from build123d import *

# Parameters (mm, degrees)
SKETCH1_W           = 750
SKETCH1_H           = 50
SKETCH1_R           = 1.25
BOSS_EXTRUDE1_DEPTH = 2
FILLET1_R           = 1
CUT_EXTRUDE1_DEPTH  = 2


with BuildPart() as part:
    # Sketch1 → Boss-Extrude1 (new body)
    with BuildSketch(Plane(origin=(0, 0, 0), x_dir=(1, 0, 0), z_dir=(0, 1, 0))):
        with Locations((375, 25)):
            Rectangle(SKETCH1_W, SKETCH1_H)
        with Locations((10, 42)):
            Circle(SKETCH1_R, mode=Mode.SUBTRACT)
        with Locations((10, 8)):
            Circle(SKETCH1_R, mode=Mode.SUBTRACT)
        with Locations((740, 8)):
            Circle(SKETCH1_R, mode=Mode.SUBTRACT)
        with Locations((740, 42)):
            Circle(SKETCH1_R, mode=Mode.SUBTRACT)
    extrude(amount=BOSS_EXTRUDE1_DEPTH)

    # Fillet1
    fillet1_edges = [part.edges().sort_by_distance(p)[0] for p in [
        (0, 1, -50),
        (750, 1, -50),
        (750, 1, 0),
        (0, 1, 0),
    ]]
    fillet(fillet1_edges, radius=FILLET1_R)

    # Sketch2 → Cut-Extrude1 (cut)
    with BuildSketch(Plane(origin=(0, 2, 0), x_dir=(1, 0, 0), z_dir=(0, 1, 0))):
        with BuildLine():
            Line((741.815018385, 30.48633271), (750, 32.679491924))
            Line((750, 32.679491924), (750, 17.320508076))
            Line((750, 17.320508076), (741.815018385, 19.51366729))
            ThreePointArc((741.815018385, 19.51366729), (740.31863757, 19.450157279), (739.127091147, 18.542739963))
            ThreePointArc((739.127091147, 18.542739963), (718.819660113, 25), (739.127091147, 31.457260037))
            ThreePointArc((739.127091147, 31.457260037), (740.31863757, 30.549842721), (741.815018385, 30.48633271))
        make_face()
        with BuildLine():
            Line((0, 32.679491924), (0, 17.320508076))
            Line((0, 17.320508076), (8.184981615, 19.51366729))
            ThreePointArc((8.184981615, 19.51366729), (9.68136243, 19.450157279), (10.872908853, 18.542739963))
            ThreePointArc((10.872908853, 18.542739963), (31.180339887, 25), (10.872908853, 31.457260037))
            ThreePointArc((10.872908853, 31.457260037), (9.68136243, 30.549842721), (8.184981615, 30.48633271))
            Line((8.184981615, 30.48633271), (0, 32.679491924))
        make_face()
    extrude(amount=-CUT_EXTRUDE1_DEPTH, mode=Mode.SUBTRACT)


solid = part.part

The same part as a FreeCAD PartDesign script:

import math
import FreeCAD as App
import Part
import Sketcher
Q = App.Units.Quantity


def edges_at(feature, points):
    """Names of the edges that pass closest to the given points."""
    edges = feature.Shape.Edges
    near = lambda p: min(range(len(edges)), key=lambda i: edges[i].distToShape(Part.Vertex(*p))[0])
    return sorted({f"Edge{near(p) + 1}" for p in points})

doc = App.newDocument("Part")
body = doc.addObject("PartDesign::Body", "Body")

sketch1 = doc.addObject("Sketcher::SketchObject", "Sketch")
body.addObject(sketch1)
sketch1.AttachmentSupport = (doc.XZ_Plane, [""])
sketch1.MapMode = "FlatFace"
sketch1.addGeometry(Part.LineSegment(App.Vector(0, -50, 0), App.Vector(0, 0, 0)), False)
sketch1.addGeometry(Part.LineSegment(App.Vector(0, 0, 0), App.Vector(750, 0, 0)), False)
sketch1.addGeometry(Part.LineSegment(App.Vector(750, 0, 0), App.Vector(750, -50, 0)), False)
sketch1.addGeometry(Part.LineSegment(App.Vector(750, -50, 0), App.Vector(0, -50, 0)), False)
sketch1.addGeometry(Part.Circle(App.Vector(10, -8, 0), App.Vector(0, 0, 1), 1.25), False)
sketch1.addGeometry(Part.Circle(App.Vector(740, -8, 0), App.Vector(0, 0, 1), 1.25), False)
sketch1.addGeometry(Part.Circle(App.Vector(10, -42, 0), App.Vector(0, 0, 1), 1.25), False)
sketch1.addGeometry(Part.Circle(App.Vector(740, -42, 0), App.Vector(0, 0, 1), 1.25), False)
sketch1.addConstraint(Sketcher.Constraint("Coincident", 0, 2, 1, 1))
sketch1.addConstraint(Sketcher.Constraint("Coincident", 1, 2, 2, 1))
sketch1.addConstraint(Sketcher.Constraint("Coincident", 2, 2, 3, 1))
sketch1.addConstraint(Sketcher.Constraint("Coincident", 3, 2, 0, 1))
sketch1.addConstraint(Sketcher.Constraint("Vertical", 0))
sketch1.addConstraint(Sketcher.Constraint("Horizontal", 1))
sketch1.addConstraint(Sketcher.Constraint("Vertical", 2))
sketch1.addConstraint(Sketcher.Constraint("Horizontal", 3))
sketch1.addConstraint(Sketcher.Constraint("Coincident", 0, 2, -1, 1))
sketch1.addConstraint(Sketcher.Constraint("Equal", 4, 5))
sketch1.addConstraint(Sketcher.Constraint("Equal", 5, 6))
sketch1.addConstraint(Sketcher.Constraint("Equal", 6, 7))
sketch1.addConstraint(Sketcher.Constraint("Horizontal", 4, 3, 5, 3))
sketch1.addConstraint(Sketcher.Constraint("Horizontal", 6, 3, 7, 3))
sketch1.addConstraint(Sketcher.Constraint("Vertical", 4, 3, 6, 3))
sketch1.addConstraint(Sketcher.Constraint("Vertical", 5, 3, 7, 3))
sketch1.addConstraint(Sketcher.Constraint("Diameter", 4, 2.5))
sketch1.addConstraint(Sketcher.Constraint("DistanceX", 1, 1, 1, 2, 750.0))
sketch1.addConstraint(Sketcher.Constraint("DistanceY", 0, 1, 0, 2, 50.0))
sketch1.addConstraint(Sketcher.Constraint("DistanceX", -1, 1, 4, 3, 10.0))
sketch1.addConstraint(Sketcher.Constraint("DistanceY", 4, 3, -1, 1, 8.0))
sketch1.addConstraint(Sketcher.Constraint("DistanceX", -1, 1, 5, 3, 740.0))
sketch1.addConstraint(Sketcher.Constraint("DistanceY", 6, 3, -1, 1, 42.0))
pad1 = doc.addObject("PartDesign::Pad", "Pad")
body.addObject(pad1)
pad1.Profile = sketch1
pad1.Length = 2
pad1.Reversed = True
doc.recompute()

fillet = doc.addObject("PartDesign::Fillet", "Fillet")
body.addObject(fillet)
fillet.Base = (pad1, edges_at(pad1, [
    (0, 1, -50),
    (750, 1, -50),
    (750, 1, 0),
    (0, 1, 0),
]))
fillet.Radius = 1

sketch2 = doc.addObject("Sketcher::SketchObject", "Sketch001")
body.addObject(sketch2)
sketch2.AttachmentSupport = (doc.XZ_Plane, [""])
sketch2.MapMode = "FlatFace"
sketch2.AttachmentOffset = App.Placement(App.Vector(0, 0, -2), App.Rotation())
sketch2.addGeometry(Part.LineSegment(App.Vector(750, -32.679492, 0), App.Vector(741.815018, -30.486333, 0)), False)
sketch2.addGeometry(Part.ArcOfCircle(Part.Circle(App.Vector(741.167971, -32.901147, 0), App.Vector(0, 0, 1), 2.5), math.radians(75), math.radians(144.72125)), False)
sketch2.addGeometry(Part.ArcOfCircle(Part.Circle(App.Vector(730, -25, 0), App.Vector(0, 0, 1), 11.18034), math.radians(35.27875), math.radians(324.72125)), False)
sketch2.addGeometry(Part.ArcOfCircle(Part.Circle(App.Vector(741.167971, -17.098853, 0), App.Vector(0, 0, 1), 2.5), math.radians(-144.72125), math.radians(-75)), False)
sketch2.addGeometry(Part.LineSegment(App.Vector(741.815018, -19.513667, 0), App.Vector(750, -17.320508, 0)), False)
sketch2.addGeometry(Part.LineSegment(App.Vector(750, -17.320508, 0), App.Vector(750, -32.679492, 0)), False)
sketch2.addGeometry(Part.LineSegment(App.Vector(0, -32.679492, 0), App.Vector(0, -17.320508, 0)), False)
sketch2.addGeometry(Part.LineSegment(App.Vector(0, -17.320508, 0), App.Vector(8.184982, -19.513667, 0)), False)
sketch2.addGeometry(Part.ArcOfCircle(Part.Circle(App.Vector(8.832029, -17.098853, 0), App.Vector(0, 0, 1), 2.5), math.radians(-105), math.radians(-35.27875)), False)
sketch2.addGeometry(Part.ArcOfCircle(Part.Circle(App.Vector(20, -25, 0), App.Vector(0, 0, 1), 11.18034), math.radians(-144.72125), math.radians(144.72125)), False)
sketch2.addGeometry(Part.ArcOfCircle(Part.Circle(App.Vector(8.832029, -32.901147, 0), App.Vector(0, 0, 1), 2.5), math.radians(35.27875), math.radians(105)), False)
sketch2.addGeometry(Part.LineSegment(App.Vector(8.184982, -30.486333, 0), App.Vector(0, -32.679492, 0)), False)
sketch2.addConstraint(Sketcher.Constraint("Tangent", 0, 2, 1, 1))
sketch2.addConstraint(Sketcher.Constraint("Tangent", 1, 2, 2, 2))
sketch2.addConstraint(Sketcher.Constraint("Tangent", 2, 1, 3, 1))
sketch2.addConstraint(Sketcher.Constraint("Tangent", 3, 2, 4, 1))
sketch2.addConstraint(Sketcher.Constraint("Coincident", 4, 2, 5, 1))
sketch2.addConstraint(Sketcher.Constraint("Coincident", 5, 2, 0, 1))
sketch2.addConstraint(Sketcher.Constraint("Coincident", 6, 2, 7, 1))
sketch2.addConstraint(Sketcher.Constraint("Tangent", 7, 2, 8, 1))
sketch2.addConstraint(Sketcher.Constraint("Tangent", 8, 2, 9, 2))
sketch2.addConstraint(Sketcher.Constraint("Tangent", 9, 1, 10, 1))
sketch2.addConstraint(Sketcher.Constraint("Tangent", 10, 2, 11, 1))
sketch2.addConstraint(Sketcher.Constraint("Coincident", 11, 2, 6, 1))
sketch2.addConstraint(Sketcher.Constraint("Vertical", 5))
sketch2.addConstraint(Sketcher.Constraint("Vertical", 6))
sketch2.addConstraint(Sketcher.Constraint("Equal", 1, 3))
sketch2.addConstraint(Sketcher.Constraint("Equal", 3, 8))
sketch2.addConstraint(Sketcher.Constraint("Equal", 2, 9))
sketch2.addConstraint(Sketcher.Constraint("Equal", 8, 10))
sketch2.addConstraint(Sketcher.Constraint("PointOnObject", 6, 2, -2))
sketch2.addConstraint(Sketcher.Constraint("Parallel", 0, 7))
sketch2.addConstraint(Sketcher.Constraint("Parallel", 4, 11))
sketch2.addConstraint(Sketcher.Constraint("Horizontal", 3, 3, 8, 3))
sketch2.addConstraint(Sketcher.Constraint("Horizontal", 2, 3, 9, 3))
sketch2.addConstraint(Sketcher.Constraint("Horizontal", 1, 3, 10, 3))
sketch2.addConstraint(Sketcher.Constraint("Horizontal", 4, 2, 6, 2))
sketch2.addConstraint(Sketcher.Constraint("Horizontal", 3, 2, 7, 2))
sketch2.addConstraint(Sketcher.Constraint("Vertical", 1, 3, 3, 3))
sketch2.addConstraint(Sketcher.Constraint("Radius", 1, 2.5))
sketch2.addConstraint(Sketcher.Constraint("Angle", 0, Q("165 deg")))
sketch2.addConstraint(Sketcher.Constraint("DistanceX", -1, 1, 2, 3, 730.0))
sketch2.addConstraint(Sketcher.Constraint("DistanceY", 2, 3, -1, 1, 25.0))
sketch2.addConstraint(Sketcher.Constraint("DistanceX", -1, 1, 9, 3, 20.0))
sketch2.addConstraint(Sketcher.Constraint("Radius", 2, 11.18034))
sketch2.addConstraint(Sketcher.Constraint("DistanceY", 5, 2, 5, 1, 15.358984))
pocket1 = doc.addObject("PartDesign::Pocket", "Pocket")
body.addObject(pocket1)
pocket1.Profile = sketch2
pocket1.Length = 2
pocket1.Reversed = True

doc.recompute()
